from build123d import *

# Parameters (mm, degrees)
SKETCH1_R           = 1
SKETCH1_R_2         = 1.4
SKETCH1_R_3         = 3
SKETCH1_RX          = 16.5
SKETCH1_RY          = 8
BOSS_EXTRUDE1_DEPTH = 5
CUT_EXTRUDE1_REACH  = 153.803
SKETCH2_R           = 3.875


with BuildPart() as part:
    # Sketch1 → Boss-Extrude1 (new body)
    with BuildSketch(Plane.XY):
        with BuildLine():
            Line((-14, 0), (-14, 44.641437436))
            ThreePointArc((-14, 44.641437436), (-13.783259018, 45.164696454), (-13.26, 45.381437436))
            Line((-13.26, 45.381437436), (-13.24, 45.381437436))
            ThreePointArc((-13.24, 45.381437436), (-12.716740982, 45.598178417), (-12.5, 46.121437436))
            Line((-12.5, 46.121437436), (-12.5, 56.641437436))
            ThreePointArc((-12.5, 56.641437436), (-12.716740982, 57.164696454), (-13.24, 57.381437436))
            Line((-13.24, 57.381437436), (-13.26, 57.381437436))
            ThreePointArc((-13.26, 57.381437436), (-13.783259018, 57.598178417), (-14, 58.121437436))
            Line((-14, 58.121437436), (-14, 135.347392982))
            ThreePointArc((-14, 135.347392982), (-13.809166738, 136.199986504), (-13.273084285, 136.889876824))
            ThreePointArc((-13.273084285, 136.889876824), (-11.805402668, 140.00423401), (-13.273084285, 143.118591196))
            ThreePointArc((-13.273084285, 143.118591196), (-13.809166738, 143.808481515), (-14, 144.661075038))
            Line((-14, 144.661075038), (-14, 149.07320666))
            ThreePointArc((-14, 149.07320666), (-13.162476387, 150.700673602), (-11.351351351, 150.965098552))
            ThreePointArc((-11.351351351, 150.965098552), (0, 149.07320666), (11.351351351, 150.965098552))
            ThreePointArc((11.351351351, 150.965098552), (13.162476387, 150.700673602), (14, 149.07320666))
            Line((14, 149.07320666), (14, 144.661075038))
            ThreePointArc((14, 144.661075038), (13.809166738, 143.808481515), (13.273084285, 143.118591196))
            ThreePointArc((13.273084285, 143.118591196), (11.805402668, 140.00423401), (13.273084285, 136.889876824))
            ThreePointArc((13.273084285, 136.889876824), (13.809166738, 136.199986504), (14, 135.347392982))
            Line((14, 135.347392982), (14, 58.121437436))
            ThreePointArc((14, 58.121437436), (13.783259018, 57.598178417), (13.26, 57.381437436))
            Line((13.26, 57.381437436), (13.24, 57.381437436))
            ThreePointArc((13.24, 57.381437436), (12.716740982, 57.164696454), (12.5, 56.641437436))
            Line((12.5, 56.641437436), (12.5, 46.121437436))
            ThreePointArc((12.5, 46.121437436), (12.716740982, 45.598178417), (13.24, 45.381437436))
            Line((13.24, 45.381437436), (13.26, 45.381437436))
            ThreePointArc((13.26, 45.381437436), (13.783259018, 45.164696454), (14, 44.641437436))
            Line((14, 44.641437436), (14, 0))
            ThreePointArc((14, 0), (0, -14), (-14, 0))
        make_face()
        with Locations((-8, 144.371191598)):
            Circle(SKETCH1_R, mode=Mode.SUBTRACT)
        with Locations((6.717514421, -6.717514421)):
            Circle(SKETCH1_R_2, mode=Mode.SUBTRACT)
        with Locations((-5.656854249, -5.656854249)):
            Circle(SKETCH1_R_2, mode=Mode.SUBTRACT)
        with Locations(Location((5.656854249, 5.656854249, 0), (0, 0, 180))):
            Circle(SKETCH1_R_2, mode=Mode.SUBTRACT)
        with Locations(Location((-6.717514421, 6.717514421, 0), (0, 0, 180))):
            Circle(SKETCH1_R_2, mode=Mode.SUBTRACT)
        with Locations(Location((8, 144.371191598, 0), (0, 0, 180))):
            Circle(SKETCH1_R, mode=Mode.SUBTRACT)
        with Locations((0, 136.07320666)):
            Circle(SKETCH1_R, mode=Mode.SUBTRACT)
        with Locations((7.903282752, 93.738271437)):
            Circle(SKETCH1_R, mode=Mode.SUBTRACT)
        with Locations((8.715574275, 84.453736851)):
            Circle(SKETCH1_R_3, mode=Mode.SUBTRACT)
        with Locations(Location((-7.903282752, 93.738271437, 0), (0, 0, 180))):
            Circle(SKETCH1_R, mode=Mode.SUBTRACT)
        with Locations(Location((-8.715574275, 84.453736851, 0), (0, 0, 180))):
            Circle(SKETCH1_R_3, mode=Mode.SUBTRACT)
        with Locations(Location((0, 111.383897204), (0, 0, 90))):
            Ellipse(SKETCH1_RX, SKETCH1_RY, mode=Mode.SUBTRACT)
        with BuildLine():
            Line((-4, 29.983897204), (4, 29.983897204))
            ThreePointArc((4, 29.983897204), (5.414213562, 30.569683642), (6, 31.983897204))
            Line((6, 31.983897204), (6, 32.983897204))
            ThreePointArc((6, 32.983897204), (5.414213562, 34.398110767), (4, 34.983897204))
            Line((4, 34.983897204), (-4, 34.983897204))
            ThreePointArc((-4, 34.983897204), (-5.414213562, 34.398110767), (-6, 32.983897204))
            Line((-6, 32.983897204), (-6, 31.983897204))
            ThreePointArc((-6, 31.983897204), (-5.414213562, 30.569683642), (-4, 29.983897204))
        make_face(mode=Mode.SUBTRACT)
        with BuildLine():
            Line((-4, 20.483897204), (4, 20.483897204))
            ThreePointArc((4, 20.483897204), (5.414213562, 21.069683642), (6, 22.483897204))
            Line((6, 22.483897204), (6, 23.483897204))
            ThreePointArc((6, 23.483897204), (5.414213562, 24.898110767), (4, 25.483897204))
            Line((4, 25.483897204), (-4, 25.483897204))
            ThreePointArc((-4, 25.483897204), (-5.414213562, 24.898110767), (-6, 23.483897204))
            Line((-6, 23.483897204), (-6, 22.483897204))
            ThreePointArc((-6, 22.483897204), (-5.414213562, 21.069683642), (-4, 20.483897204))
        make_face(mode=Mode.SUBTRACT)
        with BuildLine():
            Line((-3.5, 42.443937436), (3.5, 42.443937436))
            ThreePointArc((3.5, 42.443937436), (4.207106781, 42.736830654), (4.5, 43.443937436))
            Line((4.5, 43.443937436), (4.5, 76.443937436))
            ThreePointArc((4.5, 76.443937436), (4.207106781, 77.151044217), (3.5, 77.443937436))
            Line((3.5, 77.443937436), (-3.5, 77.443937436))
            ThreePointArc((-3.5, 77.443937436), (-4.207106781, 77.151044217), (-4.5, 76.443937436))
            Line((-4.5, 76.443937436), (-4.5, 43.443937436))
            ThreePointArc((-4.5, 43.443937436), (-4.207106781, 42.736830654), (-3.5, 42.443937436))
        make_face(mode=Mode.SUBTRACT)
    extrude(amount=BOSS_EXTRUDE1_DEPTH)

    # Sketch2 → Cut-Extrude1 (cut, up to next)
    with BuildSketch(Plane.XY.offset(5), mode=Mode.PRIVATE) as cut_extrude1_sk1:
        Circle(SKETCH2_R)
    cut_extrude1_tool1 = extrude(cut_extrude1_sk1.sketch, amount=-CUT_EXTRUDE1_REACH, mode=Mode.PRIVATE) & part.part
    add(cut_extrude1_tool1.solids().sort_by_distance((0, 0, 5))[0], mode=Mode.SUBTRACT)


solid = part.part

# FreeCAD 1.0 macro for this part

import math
import FreeCAD as App
import Part
import Sketcher
from FreeCAD import Vector
Q = App.Units.Quantity

doc = App.newDocument("Part")
body = doc.addObject("PartDesign::Body", "Body")

sketch1 = body.newObject("Sketcher::SketchObject", "Sketch")
sketch1.AttachmentSupport = (doc.getObject("XY_Plane"), [""])
sketch1.MapMode = "FlatFace"
sketch1.addGeometry([
    Part.LineSegment(Vector(-14, 44.641437, 0), Vector(-14, 0, 0)),
    Part.ArcOfCircle(Part.Circle(Vector(0, 0, 0), Vector(0, 0, 1), 14), math.radians(180), math.radians(360)),
    Part.LineSegment(Vector(14, 0, 0), Vector(14, 44.641437, 0)),
    Part.ArcOfCircle(Part.Circle(Vector(13.26, 44.641437, 0), Vector(0, 0, 1), 0.74), math.radians(0), math.radians(90)),
    Part.LineSegment(Vector(13.26, 45.381437, 0), Vector(13.24, 45.381437, 0)),
    Part.ArcOfCircle(Part.Circle(Vector(13.24, 46.121437, 0), Vector(0, 0, 1), 0.74), math.radians(180), math.radians(270)),
    Part.LineSegment(Vector(12.5, 46.121437, 0), Vector(12.5, 56.641437, 0)),
    Part.ArcOfCircle(Part.Circle(Vector(13.24, 56.641437, 0), Vector(0, 0, 1), 0.74), math.radians(90), math.radians(180)),
    Part.LineSegment(Vector(13.24, 57.381437, 0), Vector(13.26, 57.381437, 0)),
    Part.ArcOfCircle(Part.Circle(Vector(13.26, 58.121437, 0), Vector(0, 0, 1), 0.74), math.radians(-90), math.radians(0)),
    Part.LineSegment(Vector(14, 58.121437, 0), Vector(14, 135.347393, 0)),
    Part.ArcOfCircle(Part.Circle(Vector(12, 135.347393, 0), Vector(0, 0, 1), 2), math.radians(0), math.radians(50.465544)),
    Part.ArcOfCircle(Part.Circle(Vector(15.843509, 140.004234, 0), Vector(0, 0, 1), 4.038107), math.radians(129.534456), math.radians(230.465544)),
    Part.ArcOfCircle(Part.Circle(Vector(12, 144.661075, 0), Vector(0, 0, 1), 2), math.radians(-50.465544), math.radians(0)),
    Part.LineSegment(Vector(14, 144.661075, 0), Vector(14, 149.073207, 0)),
    Part.ArcOfCircle(Part.Circle(Vector(12, 149.073207, 0), Vector(0, 0, 1), 2), math.radians(0), math.radians(108.924644)),
    Part.ArcOfCircle(Part.Circle(Vector(0, 184.073207, 0), Vector(0, 0, 1), 35), math.radians(-108.924644), math.radians(-71.075356)),
    Part.ArcOfCircle(Part.Circle(Vector(-12, 149.073207, 0), Vector(0, 0, 1), 2), math.radians(71.075356), math.radians(180)),
    Part.LineSegment(Vector(-14, 149.073207, 0), Vector(-14, 144.661075, 0)),
    Part.ArcOfCircle(Part.Circle(Vector(-12, 144.661075, 0), Vector(0, 0, 1), 2), math.radians(180), math.radians(230.465544)),
    Part.ArcOfCircle(Part.Circle(Vector(-15.843509, 140.004234, 0), Vector(0, 0, 1), 4.038107), math.radians(-50.465544), math.radians(50.465544)),
    Part.ArcOfCircle(Part.Circle(Vector(-12, 135.347393, 0), Vector(0, 0, 1), 2), math.radians(129.534456), math.radians(180)),
    Part.LineSegment(Vector(-14, 135.347393, 0), Vector(-14, 58.121437, 0)),
    Part.ArcOfCircle(Part.Circle(Vector(-13.26, 58.121437, 0), Vector(0, 0, 1), 0.74), math.radians(180), math.radians(270)),
    Part.LineSegment(Vector(-13.26, 57.381437, 0), Vector(-13.24, 57.381437, 0)),
    Part.ArcOfCircle(Part.Circle(Vector(-13.24, 56.641437, 0), Vector(0, 0, 1), 0.74), math.radians(0), math.radians(90)),
    Part.LineSegment(Vector(-12.5, 56.641437, 0), Vector(-12.5, 46.121437, 0)),
    Part.ArcOfCircle(Part.Circle(Vector(-13.24, 46.121437, 0), Vector(0, 0, 1), 0.74), math.radians(-90), math.radians(0)),
    Part.LineSegment(Vector(-13.24, 45.381437, 0), Vector(-13.26, 45.381437, 0)),
    Part.ArcOfCircle(Part.Circle(Vector(-13.26, 44.641437, 0), Vector(0, 0, 1), 0.74), math.radians(90), math.radians(180)),
    Part.Circle(Vector(6.717514, -6.717514, 0), Vector(0, 0, 1), 1.4),
    Part.Circle(Vector(5.656854, 5.656854, 0), Vector(0, 0, 1), 1.4),
    Part.ArcOfCircle(Part.Circle(Vector(-4, 22.483897, 0), Vector(0, 0, 1), 2), math.radians(-180), math.radians(-90)),
    Part.LineSegment(Vector(-6, 22.483897, 0), Vector(-6, 23.483897, 0)),
    Part.ArcOfCircle(Part.Circle(Vector(-4, 23.483897, 0), Vector(0, 0, 1), 2), math.radians(90), math.radians(180)),
    Part.LineSegment(Vector(-4, 25.483897, 0), Vector(4, 25.483897, 0)),
    Part.ArcOfCircle(Part.Circle(Vector(4, 23.483897, 0), Vector(0, 0, 1), 2), math.radians(0), math.radians(90)),
    Part.LineSegment(Vector(6, 23.483897, 0), Vector(6, 22.483897, 0)),
    Part.ArcOfCircle(Part.Circle(Vector(4, 22.483897, 0), Vector(0, 0, 1), 2), math.radians(-90), math.radians(0)),
    Part.LineSegment(Vector(4, 20.483897, 0), Vector(-4, 20.483897, 0)),
    Part.ArcOfCircle(Part.Circle(Vector(-4, 31.983897, 0), Vector(0, 0, 1), 2), math.radians(-180), math.radians(-90)),
    Part.LineSegment(Vector(-6, 31.983897, 0), Vector(-6, 32.983897, 0)),
    Part.ArcOfCircle(Part.Circle(Vector(-4, 32.983897, 0), Vector(0, 0, 1), 2), math.radians(90), math.radians(180)),
    Part.LineSegment(Vector(-4, 34.983897, 0), Vector(4, 34.983897, 0)),
    Part.ArcOfCircle(Part.Circle(Vector(4, 32.983897, 0), Vector(0, 0, 1), 2), math.radians(0), math.radians(90)),
    Part.LineSegment(Vector(6, 32.983897, 0), Vector(6, 31.983897, 0)),
    Part.ArcOfCircle(Part.Circle(Vector(4, 31.983897, 0), Vector(0, 0, 1), 2), math.radians(-90), math.radians(0)),
    Part.LineSegment(Vector(4, 29.983897, 0), Vector(-4, 29.983897, 0)),
    Part.ArcOfCircle(Part.Circle(Vector(-3.5, 43.443937, 0), Vector(0, 0, 1), 1), math.radians(180), math.radians(270)),
    Part.LineSegment(Vector(-4.5, 43.443937, 0), Vector(-4.5, 76.443937, 0)),
    Part.ArcOfCircle(Part.Circle(Vector(-3.5, 76.443937, 0), Vector(0, 0, 1), 1), math.radians(90), math.radians(180)),
    Part.LineSegment(Vector(-3.5, 77.443937, 0), Vector(3.5, 77.443937, 0)),
    Part.ArcOfCircle(Part.Circle(Vector(3.5, 76.443937, 0), Vector(0, 0, 1), 1), math.radians(0), math.radians(90)),
    Part.LineSegment(Vector(4.5, 76.443937, 0), Vector(4.5, 43.443937, 0)),
    Part.ArcOfCircle(Part.Circle(Vector(3.5, 43.443937, 0), Vector(0, 0, 1), 1), math.radians(-90), math.radians(0)),
    Part.LineSegment(Vector(3.5, 42.443937, 0), Vector(-3.5, 42.443937, 0)),
    Part.Circle(Vector(-5.656854, -5.656854, 0), Vector(0, 0, 1), 1.4),
    Part.Circle(Vector(-6.717514, 6.717514, 0), Vector(0, 0, 1), 1.4),
    Part.Circle(Vector(8.715574, 84.453737, 0), Vector(0, 0, 1), 3),
    Part.Circle(Vector(7.903283, 93.738271, 0), Vector(0, 0, 1), 1),
    Part.Circle(Vector(8, 144.371192, 0), Vector(0, 0, 1), 1),
    Part.Ellipse(Vector(0, 127.883897, 0), Vector(-8, 111.383897, 0), Vector(0, 111.383897, 0)),
    Part.Circle(Vector(0, 136.073207, 0), Vector(0, 0, 1), 1),
    Part.Circle(Vector(-8.715574, 84.453737, 0), Vector(0, 0, 1), 3),
    Part.Circle(Vector(-7.903283, 93.738271, 0), Vector(0, 0, 1), 1),
    Part.Circle(Vector(-8, 144.371192, 0), Vector(0, 0, 1), 1),
], False)
sketch1.addConstraint([
    Sketcher.Constraint("Block", 61),
    Sketcher.Constraint("Tangent", 0, 2, 1, 1),
    Sketcher.Constraint("Tangent", 1, 2, 2, 1),
    Sketcher.Constraint("Tangent", 2, 2, 3, 1),
    Sketcher.Constraint("Tangent", 3, 2, 4, 1),
    Sketcher.Constraint("Tangent", 4, 2, 5, 2),
    Sketcher.Constraint("Tangent", 5, 1, 6, 1),
    Sketcher.Constraint("Tangent", 6, 2, 7, 2),
    Sketcher.Constraint("Tangent", 7, 1, 8, 1),
    Sketcher.Constraint("Tangent", 8, 2, 9, 1),
    Sketcher.Constraint("Tangent", 9, 2, 10, 1),
    Sketcher.Constraint("Tangent", 10, 2, 11, 1),
    Sketcher.Constraint("Tangent", 11, 2, 12, 2),
    Sketcher.Constraint("Tangent", 12, 1, 13, 1),
    Sketcher.Constraint("Tangent", 13, 2, 14, 1),
    Sketcher.Constraint("Tangent", 14, 2, 15, 1),
    Sketcher.Constraint("Tangent", 15, 2, 16, 2),
    Sketcher.Constraint("Tangent", 16, 1, 17, 1),
    Sketcher.Constraint("Tangent", 17, 2, 18, 1),
    Sketcher.Constraint("Tangent", 18, 2, 19, 1),
    Sketcher.Constraint("Tangent", 19, 2, 20, 2),
    Sketcher.Constraint("Tangent", 20, 1, 21, 1),
    Sketcher.Constraint("Tangent", 21, 2, 22, 1),
    Sketcher.Constraint("Tangent", 22, 2, 23, 1),
    Sketcher.Constraint("Tangent", 23, 2, 24, 1),
    Sketcher.Constraint("Tangent", 24, 2, 25, 2),
    Sketcher.Constraint("Tangent", 25, 1, 26, 1),
    Sketcher.Constraint("Tangent", 26, 2, 27, 2),
    Sketcher.Constraint("Tangent", 27, 1, 28, 1),
    Sketcher.Constraint("Tangent", 28, 2, 29, 1),
    Sketcher.Constraint("Tangent", 29, 2, 0, 1),
    Sketcher.Constraint("Tangent", 32, 1, 33, 1),
    Sketcher.Constraint("Tangent", 33, 2, 34, 2),
    Sketcher.Constraint("Tangent", 34, 1, 35, 1),
    Sketcher.Constraint("Tangent", 35, 2, 36, 2),
    Sketcher.Constraint("Tangent", 36, 1, 37, 1),
    Sketcher.Constraint("Tangent", 37, 2, 38, 2),
    Sketcher.Constraint("Tangent", 38, 1, 39, 1),
    Sketcher.Constraint("Tangent", 39, 2, 32, 2),
    Sketcher.Constraint("Tangent", 40, 1, 41, 1),
    Sketcher.Constraint("Tangent", 41, 2, 42, 2),
    Sketcher.Constraint("Tangent", 42, 1, 43, 1),
    Sketcher.Constraint("Tangent", 43, 2, 44, 2),
    Sketcher.Constraint("Tangent", 44, 1, 45, 1),
    Sketcher.Constraint("Tangent", 45, 2, 46, 2),
    Sketcher.Constraint("Tangent", 46, 1, 47, 1),
    Sketcher.Constraint("Tangent", 47, 2, 40, 2),
    Sketcher.Constraint("Tangent", 48, 1, 49, 1),
    Sketcher.Constraint("Tangent", 49, 2, 50, 2),
    Sketcher.Constraint("Tangent", 50, 1, 51, 1),
    Sketcher.Constraint("Tangent", 51, 2, 52, 2),
    Sketcher.Constraint("Tangent", 52, 1, 53, 1),
    Sketcher.Constraint("Tangent", 53, 2, 54, 2),
    Sketcher.Constraint("Tangent", 54, 1, 55, 1),
    Sketcher.Constraint("Tangent", 55, 2, 48, 2),
    Sketcher.Constraint("Vertical", 0),
    Sketcher.Constraint("Vertical", 2),
    Sketcher.Constraint("Horizontal", 4),
    Sketcher.Constraint("Vertical", 6),
    Sketcher.Constraint("Horizontal", 8),
    Sketcher.Constraint("Vertical", 10),
    Sketcher.Constraint("Vertical", 14),
    Sketcher.Constraint("Vertical", 18),
    Sketcher.Constraint("Vertical", 22),
    Sketcher.Constraint("Horizontal", 24),
    Sketcher.Constraint("Vertical", 26),
    Sketcher.Constraint("Horizontal", 28),
    Sketcher.Constraint("Vertical", 33),
    Sketcher.Constraint("Horizontal", 35),
    Sketcher.Constraint("Vertical", 37),
    Sketcher.Constraint("Horizontal", 39),
    Sketcher.Constraint("Vertical", 41),
    Sketcher.Constraint("Horizontal", 43),
    Sketcher.Constraint("Vertical", 45),
    Sketcher.Constraint("Horizontal", 47),
    Sketcher.Constraint("Vertical", 49),
    Sketcher.Constraint("Horizontal", 51),
    Sketcher.Constraint("Vertical", 53),
    Sketcher.Constraint("Horizontal", 55),
    Sketcher.Constraint("Coincident", 1, 3, -1, 1),
    Sketcher.Constraint("Equal", 3, 5),
    Sketcher.Constraint("Equal", 5, 7),
    Sketcher.Constraint("Equal", 7, 9),
    Sketcher.Constraint("Equal", 11, 13),
    Sketcher.Constraint("Equal", 13, 15),
    Sketcher.Constraint("Equal", 15, 17),
    Sketcher.Constraint("Equal", 17, 19),
    Sketcher.Constraint("Equal", 12, 20),
    Sketcher.Constraint("Equal", 19, 21),
    Sketcher.Constraint("Equal", 9, 23),
    Sketcher.Constraint("Equal", 23, 25),
    Sketcher.Constraint("Equal", 25, 27),
    Sketcher.Constraint("Equal", 27, 29),
    Sketcher.Constraint("Equal", 30, 31),
    Sketcher.Constraint("Equal", 21, 32),
    Sketcher.Constraint("Equal", 32, 34),
    Sketcher.Constraint("Equal", 34, 36),
    Sketcher.Constraint("Equal", 36, 38),
    Sketcher.Constraint("Equal", 38, 40),
    Sketcher.Constraint("Equal", 40, 42),
    Sketcher.Constraint("Equal", 42, 44),
    Sketcher.Constraint("Equal", 44, 46),
    Sketcher.Constraint("Equal", 48, 50),
    Sketcher.Constraint("Equal", 50, 52),
    Sketcher.Constraint("Equal", 52, 54),
    Sketcher.Constraint("Equal", 31, 56),
    Sketcher.Constraint("Equal", 56, 57),
    Sketcher.Constraint("Equal", 54, 59),
    Sketcher.Constraint("Equal", 59, 60),
    Sketcher.Constraint("Equal", 60, 62),
    Sketcher.Constraint("Equal", 58, 63),
    Sketcher.Constraint("Equal", 62, 64),
    Sketcher.Constraint("Equal", 64, 65),
    Sketcher.Constraint("Symmetric", 31, 3, 56, 3, -1, 1),
    Sketcher.Constraint("Symmetric", 30, 3, 57, 3, -1, 1),
    Sketcher.Constraint("Symmetric", 15, 3, 17, 3, -2),
    Sketcher.Constraint("Symmetric", 12, 3, 20, 3, -2),
    Sketcher.Constraint("Symmetric", 9, 3, 23, 3, -2),
    Sketcher.Constraint("Symmetric", 5, 3, 27, 3, -2),
    Sketcher.Constraint("Symmetric", 58, 3, 63, 3, -2),
    Sketcher.Constraint("Symmetric", 59, 3, 64, 3, -2),
    Sketcher.Constraint("Symmetric", 60, 3, 65, 3, -2),
    Sketcher.Constraint("PointOnObject", 62, 3, -2),
    Sketcher.Constraint("Vertical", 3, 3, 9, 3),
    Sketcher.Constraint("Vertical", 11, 3, 13, 3),
    Sketcher.Constraint("Vertical", 34, 3, 40, 3),
    Sketcher.Constraint("Vertical", 38, 3, 44, 3),
    Sketcher.Constraint("Equal", 37, 41),
    Sketcher.Constraint("Diameter", 58, Q("6 mm")),
    Sketcher.Constraint("Diameter", 59, Q("2 mm")),
    Sketcher.Constraint("Radius", 1, Q("14 mm")),
    Sketcher.Constraint("Radius", 11, Q("2 mm")),
    Sketcher.Constraint("Radius", 16, Q("35 mm")),
    Sketcher.Constraint("Diameter", 30, Q("2.8 mm")),
    Sketcher.Constraint("DistanceX", 35, 1, 35, 2, Q("8 mm")),
    Sketcher.Constraint("DistanceX", 51, 1, 51, 2, Q("7 mm")),
    Sketcher.Constraint("DistanceY", 33, 1, 33, 2, Q("1 mm")),
    Sketcher.Constraint("DistanceY", 49, 1, 49, 2, Q("33 mm")),
    Sketcher.Constraint("Radius", 3, Q("0.74 mm")),
    Sketcher.Constraint("DistanceX", 32, 3, -1, 1, Q("4 mm")),
    Sketcher.Constraint("DistanceX", -1, 1, 60, 3, Q("8 mm")),
    Sketcher.Constraint("DistanceX", 4, 2, 4, 1, Q("0.02 mm")),
    Sketcher.Constraint("DistanceY", 6, 1, 6, 2, Q("10.52 mm")),
    Sketcher.Constraint("DistanceX", 48, 3, -1, 1, Q("3.5 mm")),
    Sketcher.Constraint("Radius", 12, Q("4.038107 mm")),
    Sketcher.Constraint("DistanceY", 14, 1, 14, 2, Q("4.412132 mm")),
    Sketcher.Constraint("DistanceY", -1, 1, 15, 2, Q("150.965099 mm")),
    Sketcher.Constraint("DistanceY", 0, 2, 0, 1, Q("44.641437 mm")),
    Sketcher.Constraint("DistanceY", 10, 1, 10, 2, Q("77.225956 mm")),
    Sketcher.Constraint("DistanceY", -1, 1, 59, 3, Q("93.738271 mm")),
    Sketcher.Constraint("DistanceY", -1, 1, 60, 3, Q("144.371192 mm")),
    Sketcher.Constraint("DistanceX", -1, 1, 30, 3, Q("6.717514 mm")),
    Sketcher.Constraint("DistanceY", 30, 3, -1, 1, Q("6.717514 mm")),
    Sketcher.Constraint("DistanceX", -1, 1, 31, 3, Q("5.656854 mm")),
    Sketcher.Constraint("DistanceY", -1, 1, 31, 3, Q("5.656854 mm")),
    Sketcher.Constraint("DistanceY", -1, 1, 32, 3, Q("22.483897 mm")),
    Sketcher.Constraint("DistanceY", -1, 1, 40, 3, Q("31.983897 mm")),
    Sketcher.Constraint("DistanceY", -1, 1, 48, 3, Q("43.443937 mm")),
    Sketcher.Constraint("DistanceX", -1, 1, 58, 3, Q("8.715574 mm")),
    Sketcher.Constraint("DistanceY", -1, 1, 58, 3, Q("84.453737 mm")),
    Sketcher.Constraint("DistanceX", -1, 1, 59, 3, Q("7.903283 mm")),
    Sketcher.Constraint("DistanceY", -1, 1, 62, 3, Q("136.073207 mm")),
])
pad1 = body.newObject("PartDesign::Pad", "Pad")
pad1.Profile = sketch1
pad1.Length = 5

sketch2 = body.newObject("Sketcher::SketchObject", "Sketch001")
sketch2.AttachmentSupport = (doc.getObject("XY_Plane"), [""])
sketch2.MapMode = "FlatFace"
sketch2.AttachmentOffset = App.Placement(Vector(0, 0, 5), App.Rotation())
sketch2.addGeometry(Part.Circle(Vector(0, 0, 0), Vector(0, 0, 1), 3.9), False)
sketch2.addConstraint([
    Sketcher.Constraint("Coincident", 0, 3, -1, 1),
    Sketcher.Constraint("Diameter", 0, Q("7.75 mm")),
])
pocket1 = body.newObject("PartDesign::Pocket", "Pocket")
pocket1.Profile = sketch2
pocket1.Type = "UpToFirst"

doc.recompute()
